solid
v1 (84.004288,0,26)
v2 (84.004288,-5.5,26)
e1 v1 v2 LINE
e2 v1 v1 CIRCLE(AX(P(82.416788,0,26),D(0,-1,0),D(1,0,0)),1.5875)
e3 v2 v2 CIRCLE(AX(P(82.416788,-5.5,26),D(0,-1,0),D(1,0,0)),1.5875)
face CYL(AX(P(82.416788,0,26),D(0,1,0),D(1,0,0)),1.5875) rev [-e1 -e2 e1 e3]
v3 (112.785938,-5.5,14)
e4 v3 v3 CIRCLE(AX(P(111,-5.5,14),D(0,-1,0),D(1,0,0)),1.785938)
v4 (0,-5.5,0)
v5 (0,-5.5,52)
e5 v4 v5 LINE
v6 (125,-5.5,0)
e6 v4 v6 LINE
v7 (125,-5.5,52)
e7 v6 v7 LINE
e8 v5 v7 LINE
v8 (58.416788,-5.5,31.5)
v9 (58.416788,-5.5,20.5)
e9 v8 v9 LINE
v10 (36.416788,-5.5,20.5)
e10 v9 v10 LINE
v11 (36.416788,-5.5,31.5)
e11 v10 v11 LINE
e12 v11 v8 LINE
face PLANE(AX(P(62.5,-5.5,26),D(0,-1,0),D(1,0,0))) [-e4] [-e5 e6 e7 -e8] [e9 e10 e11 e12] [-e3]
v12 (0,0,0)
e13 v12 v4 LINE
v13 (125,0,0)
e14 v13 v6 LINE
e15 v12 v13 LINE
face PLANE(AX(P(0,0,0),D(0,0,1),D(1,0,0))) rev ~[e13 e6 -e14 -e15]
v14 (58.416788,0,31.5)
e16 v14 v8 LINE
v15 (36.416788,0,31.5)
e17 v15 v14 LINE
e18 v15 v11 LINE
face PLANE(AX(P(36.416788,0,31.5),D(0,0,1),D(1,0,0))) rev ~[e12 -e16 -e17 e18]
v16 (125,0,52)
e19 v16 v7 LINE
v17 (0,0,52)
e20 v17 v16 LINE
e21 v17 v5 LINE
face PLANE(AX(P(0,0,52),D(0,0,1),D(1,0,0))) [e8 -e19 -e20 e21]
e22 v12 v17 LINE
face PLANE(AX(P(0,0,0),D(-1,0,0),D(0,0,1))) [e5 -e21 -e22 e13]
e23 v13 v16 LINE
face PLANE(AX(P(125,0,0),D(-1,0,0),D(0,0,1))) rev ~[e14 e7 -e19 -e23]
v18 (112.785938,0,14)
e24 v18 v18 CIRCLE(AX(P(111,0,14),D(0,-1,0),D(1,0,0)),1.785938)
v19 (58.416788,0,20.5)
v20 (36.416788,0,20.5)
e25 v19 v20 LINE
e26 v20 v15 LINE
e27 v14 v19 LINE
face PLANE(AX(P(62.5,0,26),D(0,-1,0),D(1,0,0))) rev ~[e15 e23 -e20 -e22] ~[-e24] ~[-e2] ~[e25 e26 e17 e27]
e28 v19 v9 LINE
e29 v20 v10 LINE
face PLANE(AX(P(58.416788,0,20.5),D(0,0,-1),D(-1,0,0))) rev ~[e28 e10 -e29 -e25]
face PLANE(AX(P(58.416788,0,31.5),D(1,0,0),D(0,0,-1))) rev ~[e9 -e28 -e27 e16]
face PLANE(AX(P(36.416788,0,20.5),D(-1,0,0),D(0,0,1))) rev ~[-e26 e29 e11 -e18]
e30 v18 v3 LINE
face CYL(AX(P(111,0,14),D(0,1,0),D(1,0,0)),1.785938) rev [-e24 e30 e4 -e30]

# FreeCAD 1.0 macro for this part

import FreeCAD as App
import Part
import Sketcher

V = App.Vector
Q = App.Units.Quantity

doc = App.newDocument("Part")
params = doc.addObject("Spreadsheet::Sheet", "Params")
for row, (alias, value) in enumerate([
    ("sketch1_width", "125 mm"),
    ("sketch1_width2", "22 mm"),
    ("sketch1_height", "52 mm"),
    ("sketch1_height2", "11 mm"),
    ("pad1_length", "5.5 mm"),
], start=1):
    params.set(f"A{row}", alias)
    params.set(f"B{row}", "=" + value)
    params.setAlias(f"B{row}", alias)

body = doc.addObject("PartDesign::Body", "Body")

sketch1 = doc.addObject("Sketcher::SketchObject", "Sketch")
body.addObject(sketch1)
sketch1.AttachmentSupport = (doc.XZ_Plane, [""])
sketch1.MapMode = "FlatFace"
sketch1.addGeometry([
    Part.LineSegment(V(0, 52, 0), V(0, 0, 0)),
    Part.LineSegment(V(0, 0, 0), V(125, 0, 0)),
    Part.LineSegment(V(125, 0, 0), V(125, 52, 0)),
    Part.LineSegment(V(125, 52, 0), V(0, 52, 0)),
    Part.Circle(V(111, 14, 0), V(0, 0, 1), 1.785938),
    Part.LineSegment(V(36.416788, 31.5, 0), V(58.416788, 31.5, 0)),
    Part.LineSegment(V(58.416788, 31.5, 0), V(58.416788, 20.5, 0)),
    Part.LineSegment(V(58.416788, 20.5, 0), V(36.416788, 20.5, 0)),
    Part.LineSegment(V(36.416788, 20.5, 0), V(36.416788, 31.5, 0)),
    Part.Circle(V(82.416788, 26, 0), V(0, 0, 1), 1.5875),
], False)
sketch1.addConstraint([
    Sketcher.Constraint("Coincident", 0, 2, 1, 1),
    Sketcher.Constraint("Coincident", 1, 2, 2, 1),
    Sketcher.Constraint("Coincident", 2, 2, 3, 1),
    Sketcher.Constraint("Coincident", 3, 2, 0, 1),
    Sketcher.Constraint("Coincident", 5, 2, 6, 1),
    Sketcher.Constraint("Coincident", 6, 2, 7, 1),
    Sketcher.Constraint("Coincident", 7, 2, 8, 1),
    Sketcher.Constraint("Coincident", 8, 2, 5, 1),
    Sketcher.Constraint("Vertical", 0),
    Sketcher.Constraint("Horizontal", 1),
    Sketcher.Constraint("Vertical", 2),
    Sketcher.Constraint("Horizontal", 3),
    Sketcher.Constraint("Horizontal", 5),
    Sketcher.Constraint("Vertical", 6),
    Sketcher.Constraint("Horizontal", 7),
    Sketcher.Constraint("Vertical", 8),
    Sketcher.Constraint("Coincident", 0, 2, -1, 1),
    Sketcher.Constraint("DistanceX", 1, 1, 1, 2, Q("125 mm")),
    Sketcher.Constraint("DistanceX", 5, 1, 5, 2, Q("22 mm")),
    Sketcher.Constraint("DistanceY", 0, 2, 0, 1, Q("52 mm")),
    Sketcher.Constraint("DistanceY", 6, 2, 6, 1, Q("11 mm")),
    Sketcher.Constraint("Diameter", 9, Q("3.175 mm")),
    Sketcher.Constraint("DistanceX", -1, 1, 4, 3, Q("111 mm")),
    Sketcher.Constraint("DistanceY", -1, 1, 4, 3, Q("14 mm")),
    Sketcher.Constraint("DistanceY", -1, 1, 9, 3, Q("26 mm")),
    Sketcher.Constraint("DistanceX", 5, 2, 9, 3, Q("24 mm")),
    Sketcher.Constraint("DistanceY", -1, 1, 5, 2, Q("31.5 mm")),
    Sketcher.Constraint("Diameter", 4, Q("3.571876 mm")),
    Sketcher.Constraint("DistanceX", -1, 1, 9, 3, Q("82.416788 mm")),
])
sketch1.setExpression("Constraints[17]", "Params.sketch1_width")
sketch1.setExpression("Constraints[18]", "Params.sketch1_width2")
sketch1.setExpression("Constraints[19]", "Params.sketch1_height")
sketch1.setExpression("Constraints[20]", "Params.sketch1_height2")
pad1 = doc.addObject("PartDesign::Pad", "Pad")
body.addObject(pad1)
pad1.Profile = sketch1
pad1.setExpression("Length", "Params.pad1_length")

doc.recompute()
